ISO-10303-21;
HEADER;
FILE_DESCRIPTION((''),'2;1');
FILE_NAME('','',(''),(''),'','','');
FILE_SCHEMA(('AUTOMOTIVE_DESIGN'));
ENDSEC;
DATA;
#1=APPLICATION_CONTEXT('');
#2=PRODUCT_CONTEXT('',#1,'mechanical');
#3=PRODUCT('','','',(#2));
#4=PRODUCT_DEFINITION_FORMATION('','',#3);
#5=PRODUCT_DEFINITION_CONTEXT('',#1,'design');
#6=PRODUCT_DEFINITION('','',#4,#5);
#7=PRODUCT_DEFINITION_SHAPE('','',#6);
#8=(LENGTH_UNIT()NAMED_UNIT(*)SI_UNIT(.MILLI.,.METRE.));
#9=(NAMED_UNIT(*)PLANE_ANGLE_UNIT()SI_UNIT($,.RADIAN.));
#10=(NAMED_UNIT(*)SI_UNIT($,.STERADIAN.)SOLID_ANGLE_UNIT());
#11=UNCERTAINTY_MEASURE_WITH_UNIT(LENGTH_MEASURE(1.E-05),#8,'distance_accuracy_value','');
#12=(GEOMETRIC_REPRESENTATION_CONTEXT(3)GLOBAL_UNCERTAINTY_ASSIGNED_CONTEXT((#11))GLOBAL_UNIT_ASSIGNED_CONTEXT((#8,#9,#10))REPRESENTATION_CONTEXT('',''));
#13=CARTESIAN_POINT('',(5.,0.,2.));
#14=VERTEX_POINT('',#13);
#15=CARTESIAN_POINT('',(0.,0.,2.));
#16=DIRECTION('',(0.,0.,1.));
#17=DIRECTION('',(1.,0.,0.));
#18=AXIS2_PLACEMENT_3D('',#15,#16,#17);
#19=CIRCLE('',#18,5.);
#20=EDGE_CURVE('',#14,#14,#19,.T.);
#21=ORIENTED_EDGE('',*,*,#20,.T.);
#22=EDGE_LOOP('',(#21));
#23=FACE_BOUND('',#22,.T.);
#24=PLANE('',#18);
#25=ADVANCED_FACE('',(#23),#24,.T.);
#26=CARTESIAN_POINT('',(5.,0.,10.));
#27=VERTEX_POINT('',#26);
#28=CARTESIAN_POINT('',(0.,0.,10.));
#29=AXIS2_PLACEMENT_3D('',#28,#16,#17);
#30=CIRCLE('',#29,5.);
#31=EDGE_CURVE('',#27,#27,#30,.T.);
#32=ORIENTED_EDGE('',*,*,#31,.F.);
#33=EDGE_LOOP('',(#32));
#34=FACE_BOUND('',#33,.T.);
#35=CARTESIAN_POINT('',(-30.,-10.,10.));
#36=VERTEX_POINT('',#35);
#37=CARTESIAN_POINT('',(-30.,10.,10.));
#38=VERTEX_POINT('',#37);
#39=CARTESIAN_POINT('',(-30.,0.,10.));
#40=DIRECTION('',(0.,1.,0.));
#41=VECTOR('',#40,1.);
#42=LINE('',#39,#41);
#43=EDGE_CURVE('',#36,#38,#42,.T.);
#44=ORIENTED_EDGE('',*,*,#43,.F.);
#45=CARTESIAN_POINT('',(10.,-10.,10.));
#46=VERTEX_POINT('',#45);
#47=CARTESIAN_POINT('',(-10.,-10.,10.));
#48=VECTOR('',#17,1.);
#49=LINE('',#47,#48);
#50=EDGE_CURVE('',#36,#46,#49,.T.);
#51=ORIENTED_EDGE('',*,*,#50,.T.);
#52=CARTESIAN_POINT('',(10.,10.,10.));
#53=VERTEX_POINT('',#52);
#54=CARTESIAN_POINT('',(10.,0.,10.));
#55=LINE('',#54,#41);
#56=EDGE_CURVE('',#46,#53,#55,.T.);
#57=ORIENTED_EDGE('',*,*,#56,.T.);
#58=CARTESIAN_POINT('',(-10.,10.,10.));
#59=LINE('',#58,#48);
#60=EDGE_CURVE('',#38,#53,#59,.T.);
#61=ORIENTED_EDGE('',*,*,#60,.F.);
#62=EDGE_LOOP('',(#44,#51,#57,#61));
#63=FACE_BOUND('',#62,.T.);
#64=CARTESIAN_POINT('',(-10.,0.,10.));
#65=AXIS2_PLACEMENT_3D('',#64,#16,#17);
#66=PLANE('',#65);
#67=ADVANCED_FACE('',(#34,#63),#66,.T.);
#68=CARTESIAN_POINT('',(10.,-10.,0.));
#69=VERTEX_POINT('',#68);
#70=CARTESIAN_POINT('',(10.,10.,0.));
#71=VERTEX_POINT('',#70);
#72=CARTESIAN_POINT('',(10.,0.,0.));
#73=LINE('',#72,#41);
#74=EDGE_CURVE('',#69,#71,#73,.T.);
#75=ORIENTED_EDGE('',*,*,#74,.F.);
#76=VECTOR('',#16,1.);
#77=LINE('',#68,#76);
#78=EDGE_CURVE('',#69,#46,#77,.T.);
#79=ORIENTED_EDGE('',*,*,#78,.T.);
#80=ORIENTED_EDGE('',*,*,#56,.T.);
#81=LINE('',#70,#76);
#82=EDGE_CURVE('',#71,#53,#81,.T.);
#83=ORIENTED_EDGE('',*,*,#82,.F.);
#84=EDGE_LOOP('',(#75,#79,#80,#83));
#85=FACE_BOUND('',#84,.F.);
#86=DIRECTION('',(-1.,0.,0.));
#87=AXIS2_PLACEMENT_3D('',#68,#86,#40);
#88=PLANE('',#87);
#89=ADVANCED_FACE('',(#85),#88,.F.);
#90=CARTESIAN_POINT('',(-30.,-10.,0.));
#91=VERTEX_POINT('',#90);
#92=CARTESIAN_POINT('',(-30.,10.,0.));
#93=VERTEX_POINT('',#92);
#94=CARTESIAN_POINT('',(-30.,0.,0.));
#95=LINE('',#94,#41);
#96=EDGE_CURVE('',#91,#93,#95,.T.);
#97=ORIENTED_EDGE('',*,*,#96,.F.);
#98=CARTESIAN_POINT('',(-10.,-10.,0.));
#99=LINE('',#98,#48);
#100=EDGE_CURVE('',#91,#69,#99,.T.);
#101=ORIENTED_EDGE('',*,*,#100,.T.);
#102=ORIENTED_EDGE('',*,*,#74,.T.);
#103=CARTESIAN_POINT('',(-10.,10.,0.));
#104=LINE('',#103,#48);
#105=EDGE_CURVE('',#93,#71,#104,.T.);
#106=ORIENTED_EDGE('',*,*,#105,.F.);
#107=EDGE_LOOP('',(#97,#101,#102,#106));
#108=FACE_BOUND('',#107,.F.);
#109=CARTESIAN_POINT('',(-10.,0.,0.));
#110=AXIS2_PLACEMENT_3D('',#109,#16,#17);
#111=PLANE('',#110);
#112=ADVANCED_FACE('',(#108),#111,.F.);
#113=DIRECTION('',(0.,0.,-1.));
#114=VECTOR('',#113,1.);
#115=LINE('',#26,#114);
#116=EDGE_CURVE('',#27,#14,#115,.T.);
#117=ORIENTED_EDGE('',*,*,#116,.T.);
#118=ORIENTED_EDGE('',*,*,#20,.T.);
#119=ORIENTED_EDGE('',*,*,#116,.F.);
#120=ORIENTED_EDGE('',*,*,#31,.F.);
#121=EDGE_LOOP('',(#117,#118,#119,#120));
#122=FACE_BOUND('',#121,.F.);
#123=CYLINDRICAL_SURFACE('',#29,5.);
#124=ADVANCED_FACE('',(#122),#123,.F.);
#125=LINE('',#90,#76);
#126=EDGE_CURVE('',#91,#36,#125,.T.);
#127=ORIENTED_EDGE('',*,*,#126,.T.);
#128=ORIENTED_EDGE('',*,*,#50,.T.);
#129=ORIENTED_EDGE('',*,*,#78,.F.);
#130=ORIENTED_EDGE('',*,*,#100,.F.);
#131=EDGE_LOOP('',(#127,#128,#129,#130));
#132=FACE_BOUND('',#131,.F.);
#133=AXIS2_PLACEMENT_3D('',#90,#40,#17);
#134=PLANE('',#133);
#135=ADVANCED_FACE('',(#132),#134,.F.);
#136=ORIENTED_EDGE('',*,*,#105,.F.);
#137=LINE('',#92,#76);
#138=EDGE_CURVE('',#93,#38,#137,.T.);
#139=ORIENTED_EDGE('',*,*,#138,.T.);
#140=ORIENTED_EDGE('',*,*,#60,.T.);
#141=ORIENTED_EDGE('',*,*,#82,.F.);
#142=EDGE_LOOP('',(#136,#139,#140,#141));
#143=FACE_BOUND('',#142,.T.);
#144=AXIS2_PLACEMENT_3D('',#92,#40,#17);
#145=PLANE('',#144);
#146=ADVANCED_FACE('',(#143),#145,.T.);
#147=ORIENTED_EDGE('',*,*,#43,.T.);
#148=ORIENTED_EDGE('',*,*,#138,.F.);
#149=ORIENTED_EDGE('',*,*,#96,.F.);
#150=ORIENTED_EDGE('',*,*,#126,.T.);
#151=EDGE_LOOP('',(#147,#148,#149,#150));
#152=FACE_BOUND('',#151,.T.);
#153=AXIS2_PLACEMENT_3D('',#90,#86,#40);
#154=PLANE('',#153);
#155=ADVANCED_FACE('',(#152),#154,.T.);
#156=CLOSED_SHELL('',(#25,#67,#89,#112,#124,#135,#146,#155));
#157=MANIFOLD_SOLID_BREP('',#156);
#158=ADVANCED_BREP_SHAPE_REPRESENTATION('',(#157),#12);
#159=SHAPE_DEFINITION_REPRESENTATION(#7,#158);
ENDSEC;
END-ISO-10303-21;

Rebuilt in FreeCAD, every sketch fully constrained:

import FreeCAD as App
import Part
import Sketcher
Q = App.Units.Quantity

doc = App.newDocument("Part")
body = doc.addObject("PartDesign::Body", "Body")

# Sketch on XY plane
sketch1 = body.newObject("Sketcher::SketchObject", "Sketch")
sketch1.AttachmentSupport = (doc.getObject("XY_Plane"), [""])
sketch1.MapMode = "FlatFace"
sketch1.addGeometry([
    Part.LineSegment(App.Vector(-30, 10, 0), App.Vector(-30, -10, 0)),
    Part.LineSegment(App.Vector(-30, -10, 0), App.Vector(10, -10, 0)),
    Part.LineSegment(App.Vector(10, -10, 0), App.Vector(10, 10, 0)),
    Part.LineSegment(App.Vector(10, 10, 0), App.Vector(-30, 10, 0)),
], False)
sketch1.addConstraint([
    Sketcher.Constraint("Coincident", 0, 2, 1, 1),
    Sketcher.Constraint("Coincident", 1, 2, 2, 1),
    Sketcher.Constraint("Coincident", 2, 2, 3, 1),
    Sketcher.Constraint("Coincident", 3, 2, 0, 1),
    Sketcher.Constraint("Vertical", 0),
    Sketcher.Constraint("Horizontal", 1),
    Sketcher.Constraint("Vertical", 2),
    Sketcher.Constraint("Horizontal", 3),
    Sketcher.Constraint("DistanceX", 1, 1, 1, 2, Q("40 mm")),
    Sketcher.Constraint("DistanceY", 0, 2, 0, 1, Q("20 mm")),
    Sketcher.Constraint("DistanceX", 0, 2, -1, 1, Q("30 mm")),
    Sketcher.Constraint("DistanceY", 0, 2, -1, 1, Q("10 mm")),
])
pad1 = body.newObject("PartDesign::Pad", "Pad")
pad1.Profile = sketch1
pad1.Length = 10

# Sketch on XY plane
sketch2 = body.newObject("Sketcher::SketchObject", "Sketch001")
sketch2.AttachmentSupport = (doc.getObject("XY_Plane"), [""])
sketch2.MapMode = "FlatFace"
sketch2.AttachmentOffset = App.Placement(App.Vector(0, 0, 10), App.Rotation())
sketch2.addGeometry(Part.Circle(App.Vector(0, 0, 0), App.Vector(0, 0, 1), 5), False)
sketch2.addConstraint([
    Sketcher.Constraint("Coincident", 0, 3, -1, 1),
    Sketcher.Constraint("Diameter", 0, Q("10 mm")),
])
pocket1 = body.newObject("PartDesign::Pocket", "Pocket")
pocket1.Profile = sketch2
pocket1.Length = 8

doc.recompute()
